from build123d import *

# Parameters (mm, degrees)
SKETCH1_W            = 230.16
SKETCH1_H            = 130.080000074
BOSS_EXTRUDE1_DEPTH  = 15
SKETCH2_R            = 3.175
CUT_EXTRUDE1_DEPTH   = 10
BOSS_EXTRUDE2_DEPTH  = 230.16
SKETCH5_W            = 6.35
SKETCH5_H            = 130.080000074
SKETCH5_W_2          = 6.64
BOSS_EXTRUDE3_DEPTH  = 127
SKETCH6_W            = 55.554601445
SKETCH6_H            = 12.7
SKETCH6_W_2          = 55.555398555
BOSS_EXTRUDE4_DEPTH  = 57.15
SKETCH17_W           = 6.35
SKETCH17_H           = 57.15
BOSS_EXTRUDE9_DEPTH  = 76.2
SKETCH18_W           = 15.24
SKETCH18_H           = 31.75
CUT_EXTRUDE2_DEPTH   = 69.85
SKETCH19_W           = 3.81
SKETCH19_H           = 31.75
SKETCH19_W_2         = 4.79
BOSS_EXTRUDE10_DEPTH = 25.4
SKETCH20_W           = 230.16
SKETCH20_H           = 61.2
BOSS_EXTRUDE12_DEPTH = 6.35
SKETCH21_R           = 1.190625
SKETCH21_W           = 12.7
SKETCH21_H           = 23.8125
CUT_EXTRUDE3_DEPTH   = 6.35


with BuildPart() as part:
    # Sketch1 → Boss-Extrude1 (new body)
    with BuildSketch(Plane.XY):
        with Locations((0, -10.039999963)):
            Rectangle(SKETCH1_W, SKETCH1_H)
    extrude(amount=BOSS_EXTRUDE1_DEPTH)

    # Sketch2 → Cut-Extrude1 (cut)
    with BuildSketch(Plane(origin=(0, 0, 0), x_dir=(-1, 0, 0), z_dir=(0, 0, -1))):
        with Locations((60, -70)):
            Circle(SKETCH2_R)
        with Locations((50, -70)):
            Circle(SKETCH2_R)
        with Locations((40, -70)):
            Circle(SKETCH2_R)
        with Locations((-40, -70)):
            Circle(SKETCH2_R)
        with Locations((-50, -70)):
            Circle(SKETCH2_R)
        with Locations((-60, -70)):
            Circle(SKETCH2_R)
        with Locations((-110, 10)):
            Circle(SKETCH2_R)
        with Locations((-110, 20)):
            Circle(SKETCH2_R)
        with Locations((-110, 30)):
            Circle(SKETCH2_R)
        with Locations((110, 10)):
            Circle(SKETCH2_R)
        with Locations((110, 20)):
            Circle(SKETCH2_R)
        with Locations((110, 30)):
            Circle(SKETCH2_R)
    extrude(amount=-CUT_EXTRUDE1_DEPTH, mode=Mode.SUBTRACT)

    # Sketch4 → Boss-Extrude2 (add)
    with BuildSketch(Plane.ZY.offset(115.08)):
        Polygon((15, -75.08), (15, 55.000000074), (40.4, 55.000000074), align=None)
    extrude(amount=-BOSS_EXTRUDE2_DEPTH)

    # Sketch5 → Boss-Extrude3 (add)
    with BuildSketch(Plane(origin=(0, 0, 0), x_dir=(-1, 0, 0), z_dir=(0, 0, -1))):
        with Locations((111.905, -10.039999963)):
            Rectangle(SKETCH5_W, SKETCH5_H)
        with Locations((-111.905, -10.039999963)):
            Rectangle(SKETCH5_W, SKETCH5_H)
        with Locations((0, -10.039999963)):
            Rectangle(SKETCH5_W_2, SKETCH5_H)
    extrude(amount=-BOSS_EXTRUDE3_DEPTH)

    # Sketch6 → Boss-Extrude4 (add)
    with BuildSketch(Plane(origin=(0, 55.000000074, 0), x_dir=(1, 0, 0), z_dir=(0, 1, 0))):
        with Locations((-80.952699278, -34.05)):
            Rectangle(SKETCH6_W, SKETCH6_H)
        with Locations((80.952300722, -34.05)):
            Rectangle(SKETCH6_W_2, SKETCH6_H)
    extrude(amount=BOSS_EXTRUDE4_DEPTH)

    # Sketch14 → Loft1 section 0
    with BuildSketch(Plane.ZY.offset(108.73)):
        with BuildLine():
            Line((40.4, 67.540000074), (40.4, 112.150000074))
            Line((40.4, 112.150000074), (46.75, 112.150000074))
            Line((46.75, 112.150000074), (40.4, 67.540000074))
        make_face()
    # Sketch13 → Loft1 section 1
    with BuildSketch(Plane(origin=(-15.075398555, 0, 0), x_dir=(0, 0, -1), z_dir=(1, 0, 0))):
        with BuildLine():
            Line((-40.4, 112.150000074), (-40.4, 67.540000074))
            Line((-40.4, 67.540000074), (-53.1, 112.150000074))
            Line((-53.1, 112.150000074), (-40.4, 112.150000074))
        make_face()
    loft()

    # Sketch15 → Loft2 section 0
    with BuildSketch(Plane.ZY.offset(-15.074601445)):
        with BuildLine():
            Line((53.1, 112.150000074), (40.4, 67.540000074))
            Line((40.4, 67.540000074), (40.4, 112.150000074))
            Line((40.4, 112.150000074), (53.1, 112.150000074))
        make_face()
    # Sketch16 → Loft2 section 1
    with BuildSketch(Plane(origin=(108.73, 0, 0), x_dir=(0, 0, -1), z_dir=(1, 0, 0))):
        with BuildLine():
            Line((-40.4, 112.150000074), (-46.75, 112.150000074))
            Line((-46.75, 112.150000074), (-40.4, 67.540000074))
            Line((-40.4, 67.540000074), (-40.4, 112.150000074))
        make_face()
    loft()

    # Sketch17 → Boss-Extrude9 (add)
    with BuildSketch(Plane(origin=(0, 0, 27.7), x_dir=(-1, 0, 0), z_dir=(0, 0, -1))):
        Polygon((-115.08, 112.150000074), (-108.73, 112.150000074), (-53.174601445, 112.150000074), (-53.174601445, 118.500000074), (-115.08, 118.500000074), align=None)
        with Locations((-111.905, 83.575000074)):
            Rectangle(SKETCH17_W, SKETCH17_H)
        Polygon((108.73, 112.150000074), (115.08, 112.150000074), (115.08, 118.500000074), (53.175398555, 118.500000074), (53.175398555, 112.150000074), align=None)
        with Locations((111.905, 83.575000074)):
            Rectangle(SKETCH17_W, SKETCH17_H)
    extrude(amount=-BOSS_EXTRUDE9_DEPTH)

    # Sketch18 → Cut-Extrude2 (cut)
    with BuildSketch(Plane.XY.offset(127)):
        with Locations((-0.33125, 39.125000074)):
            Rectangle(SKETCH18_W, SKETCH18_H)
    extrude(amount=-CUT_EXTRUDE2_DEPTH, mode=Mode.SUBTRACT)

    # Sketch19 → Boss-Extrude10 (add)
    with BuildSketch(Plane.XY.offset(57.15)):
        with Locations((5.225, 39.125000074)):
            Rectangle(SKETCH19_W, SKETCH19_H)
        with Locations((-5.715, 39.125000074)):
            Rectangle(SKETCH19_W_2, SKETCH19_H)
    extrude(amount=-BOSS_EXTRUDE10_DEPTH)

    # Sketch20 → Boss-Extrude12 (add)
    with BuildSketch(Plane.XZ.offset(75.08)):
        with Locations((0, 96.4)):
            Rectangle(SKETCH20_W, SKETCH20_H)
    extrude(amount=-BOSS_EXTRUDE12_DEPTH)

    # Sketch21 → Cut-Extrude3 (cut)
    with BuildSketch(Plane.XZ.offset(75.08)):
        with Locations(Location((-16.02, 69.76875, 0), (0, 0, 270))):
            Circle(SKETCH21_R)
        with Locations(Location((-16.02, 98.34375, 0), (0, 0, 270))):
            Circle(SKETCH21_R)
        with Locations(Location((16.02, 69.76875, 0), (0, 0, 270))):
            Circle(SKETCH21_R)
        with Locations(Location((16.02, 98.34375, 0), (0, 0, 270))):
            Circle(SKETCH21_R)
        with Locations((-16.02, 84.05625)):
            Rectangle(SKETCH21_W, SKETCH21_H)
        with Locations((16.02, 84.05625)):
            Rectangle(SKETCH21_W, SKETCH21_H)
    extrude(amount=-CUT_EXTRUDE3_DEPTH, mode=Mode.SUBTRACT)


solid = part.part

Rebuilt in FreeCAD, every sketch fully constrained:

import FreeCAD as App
import Part
import Sketcher
Q = App.Units.Quantity

doc = App.newDocument("Part")
body = doc.addObject("PartDesign::Body", "Body")

# Sketch on XY plane
sketch1 = body.newObject("Sketcher::SketchObject", "Sketch")
sketch1.AttachmentSupport = (doc.getObject("XY_Plane"), [""])
sketch1.MapMode = "FlatFace"
sketch1.addGeometry([
    Part.LineSegment(App.Vector(-115, 55, 0), App.Vector(-115, -75, 0)),
    Part.LineSegment(App.Vector(-115, -75, 0), App.Vector(115, -75, 0)),
    Part.LineSegment(App.Vector(115, -75, 0), App.Vector(115, 55, 0)),
    Part.LineSegment(App.Vector(115, 55, 0), App.Vector(-115, 55, 0)),
], False)
sketch1.addConstraint([
    Sketcher.Constraint("Coincident", 0, 2, 1, 1),
    Sketcher.Constraint("Coincident", 1, 2, 2, 1),
    Sketcher.Constraint("Coincident", 2, 2, 3, 1),
    Sketcher.Constraint("Coincident", 3, 2, 0, 1),
    Sketcher.Constraint("Vertical", 0),
    Sketcher.Constraint("Horizontal", 1),
    Sketcher.Constraint("Vertical", 2),
    Sketcher.Constraint("Horizontal", 3),
    Sketcher.Constraint("DistanceX", 1, 1, 1, 2, Q("230.16 mm")),
    Sketcher.Constraint("DistanceY", 0, 2, 0, 1, Q("130.08 mm")),
    Sketcher.Constraint("DistanceX", 0, 2, -1, 1, Q("115.08 mm")),
    Sketcher.Constraint("DistanceY", 0, 2, -1, 1, Q("75.08 mm")),
])
pad1 = body.newObject("PartDesign::Pad", "Pad")
pad1.Profile = sketch1
pad1.Length = 15

# Sketch on XY plane
sketch2 = body.newObject("Sketcher::SketchObject", "Sketch001")
sketch2.AttachmentSupport = (doc.getObject("XY_Plane"), [""])
sketch2.MapMode = "FlatFace"
sketch2.addGeometry([
    Part.Circle(App.Vector(-60, -70, 0), App.Vector(0, 0, 1), 3.2),  # 0
    Part.Circle(App.Vector(-50, -70, 0), App.Vector(0, 0, 1), 3.2),  # 1
    Part.Circle(App.Vector(-40, -70, 0), App.Vector(0, 0, 1), 3.2),  # 2
    Part.Circle(App.Vector(40, -70, 0), App.Vector(0, 0, 1), 3.2),  # 3
    Part.Circle(App.Vector(50, -70, 0), App.Vector(0, 0, 1), 3.2),  # 4
    Part.Circle(App.Vector(60, -70, 0), App.Vector(0, 0, 1), 3.2),  # 5
    Part.Circle(App.Vector(110, 10, 0), App.Vector(0, 0, 1), 3.2),  # 6
    Part.Circle(App.Vector(110, 20, 0), App.Vector(0, 0, 1), 3.2),  # 7
    Part.Circle(App.Vector(110, 30, 0), App.Vector(0, 0, 1), 3.2),  # 8
    Part.Circle(App.Vector(-110, 10, 0), App.Vector(0, 0, 1), 3.2),  # 9
    Part.Circle(App.Vector(-110, 20, 0), App.Vector(0, 0, 1), 3.2),  # 10
    Part.Circle(App.Vector(-110, 30, 0), App.Vector(0, 0, 1), 3.2),  # 11
], False)
sketch2.addConstraint([
    Sketcher.Constraint("Equal", 0, 1),
    Sketcher.Constraint("Equal", 1, 2),
    Sketcher.Constraint("Equal", 2, 3),
    Sketcher.Constraint("Equal", 3, 4),
    Sketcher.Constraint("Equal", 4, 5),
    Sketcher.Constraint("Equal", 5, 6),
    Sketcher.Constraint("Equal", 6, 7),
    Sketcher.Constraint("Equal", 7, 8),
    Sketcher.Constraint("Equal", 8, 9),
    Sketcher.Constraint("Equal", 9, 10),
    Sketcher.Constraint("Equal", 10, 11),
    Sketcher.Constraint("Symmetric", 2, 3, 3, 3, -2),
    Sketcher.Constraint("Symmetric", 1, 3, 4, 3, -2),
    Sketcher.Constraint("Symmetric", 0, 3, 5, 3, -2),
    Sketcher.Constraint("Symmetric", 6, 3, 9, 3, -2),
    Sketcher.Constraint("Symmetric", 7, 3, 10, 3, -2),
    Sketcher.Constraint("Symmetric", 8, 3, 11, 3, -2),
    Sketcher.Constraint("Horizontal", 0, 3, 1, 3),
    Sketcher.Constraint("Horizontal", 1, 3, 2, 3),
    Sketcher.Constraint("Vertical", 6, 3, 7, 3),
    Sketcher.Constraint("Vertical", 7, 3, 8, 3),
    Sketcher.Constraint("Diameter", 0, Q("0.25 in")),
    Sketcher.Constraint("DistanceX", 0, 3, -1, 1, Q("60 mm")),
    Sketcher.Constraint("DistanceY", 0, 3, -1, 1, Q("70 mm")),
    Sketcher.Constraint("DistanceX", 1, 3, -1, 1, Q("50 mm")),
    Sketcher.Constraint("DistanceX", 2, 3, -1, 1, Q("40 mm")),
    Sketcher.Constraint("DistanceX", -1, 1, 6, 3, Q("110 mm")),
    Sketcher.Constraint("DistanceY", -1, 1, 6, 3, Q("10 mm")),
    Sketcher.Constraint("DistanceY", -1, 1, 7, 3, Q("20 mm")),
    Sketcher.Constraint("DistanceY", -1, 1, 8, 3, Q("30 mm")),
])
pocket1 = body.newObject("PartDesign::Pocket", "Pocket")
pocket1.Profile = sketch2
pocket1.Length = 10
pocket1.Reversed = True

# Sketch on YZ plane
sketch3 = body.newObject("Sketcher::SketchObject", "Sketch002")
sketch3.AttachmentSupport = (doc.getObject("YZ_Plane"), [""])
sketch3.MapMode = "FlatFace"
sketch3.AttachmentOffset = App.Placement(App.Vector(0, 0, -115.08), App.Rotation())
sketch3.addGeometry([
    Part.LineSegment(App.Vector(55, 15, 0), App.Vector(-75, 15, 0)),
    Part.LineSegment(App.Vector(-75, 15, 0), App.Vector(55, 40, 0)),
    Part.LineSegment(App.Vector(55, 40, 0), App.Vector(55, 15, 0)),
], False)
sketch3.addConstraint([
    Sketcher.Constraint("Coincident", 0, 2, 1, 1),
    Sketcher.Constraint("Coincident", 1, 2, 2, 1),
    Sketcher.Constraint("Coincident", 2, 2, 0, 1),
    Sketcher.Constraint("Horizontal", 0),
    Sketcher.Constraint("Vertical", 2),
    Sketcher.Constraint("DistanceY", 2, 2, 2, 1, Q("1 in")),
    Sketcher.Constraint("DistanceX", 0, 2, 0, 1, Q("130.08 mm")),
    Sketcher.Constraint("DistanceX", 0, 2, -1, 1, Q("75.08 mm")),
    Sketcher.Constraint("DistanceY", -1, 1, 0, 2, Q("15 mm")),
])
pad2 = body.newObject("PartDesign::Pad", "Pad001")
pad2.Profile = sketch3
pad2.Length = 230.16

# Sketch on XY plane
sketch4 = body.newObject("Sketcher::SketchObject", "Sketch003")
sketch4.AttachmentSupport = (doc.getObject("XY_Plane"), [""])
sketch4.MapMode = "FlatFace"
sketch4.addGeometry([
    Part.LineSegment(App.Vector(-109, 55, 0), App.Vector(-109, -75, 0)),  # 0
    Part.LineSegment(App.Vector(-109, -75, 0), App.Vector(-115, -75, 0)),  # 1
    Part.LineSegment(App.Vector(-115, -75, 0), App.Vector(-115, 55, 0)),  # 2
    Part.LineSegment(App.Vector(-115, 55, 0), App.Vector(-109, 55, 0)),  # 3
    Part.LineSegment(App.Vector(115, 55, 0), App.Vector(115, -75, 0)),  # 4
    Part.LineSegment(App.Vector(115, -75, 0), App.Vector(109, -75, 0)),  # 5
    Part.LineSegment(App.Vector(109, -75, 0), App.Vector(109, 55, 0)),  # 6
    Part.LineSegment(App.Vector(109, 55, 0), App.Vector(115, 55, 0)),  # 7
    Part.LineSegment(App.Vector(3, 55, 0), App.Vector(3, -75, 0)),  # 8
    Part.LineSegment(App.Vector(3, -75, 0), App.Vector(-3, -75, 0)),  # 9
    Part.LineSegment(App.Vector(-3, -75, 0), App.Vector(-3, 55, 0)),  # 10
    Part.LineSegment(App.Vector(-3, 55, 0), App.Vector(3, 55, 0)),  # 11
], False)
sketch4.addConstraint([
    Sketcher.Constraint("Coincident", 0, 2, 1, 1),
    Sketcher.Constraint("Coincident", 1, 2, 2, 1),
    Sketcher.Constraint("Coincident", 2, 2, 3, 1),
    Sketcher.Constraint("Coincident", 3, 2, 0, 1),
    Sketcher.Constraint("Coincident", 4, 2, 5, 1),
    Sketcher.Constraint("Coincident", 5, 2, 6, 1),
    Sketcher.Constraint("Coincident", 6, 2, 7, 1),
    Sketcher.Constraint("Coincident", 7, 2, 4, 1),
    Sketcher.Constraint("Coincident", 8, 2, 9, 1),
    Sketcher.Constraint("Coincident", 9, 2, 10, 1),
    Sketcher.Constraint("Coincident", 10, 2, 11, 1),
    Sketcher.Constraint("Coincident", 11, 2, 8, 1),
    Sketcher.Constraint("Vertical", 0),
    Sketcher.Constraint("Horizontal", 1),
    Sketcher.Constraint("Vertical", 2),
    Sketcher.Constraint("Horizontal", 3),
    Sketcher.Constraint("Vertical", 4),
    Sketcher.Constraint("Horizontal", 5),
    Sketcher.Constraint("Vertical", 6),
    Sketcher.Constraint("Horizontal", 7),
    Sketcher.Constraint("Vertical", 8),
    Sketcher.Constraint("Horizontal", 9),
    Sketcher.Constraint("Vertical", 10),
    Sketcher.Constraint("Horizontal", 11),
    Sketcher.Constraint("Symmetric", 1, 2, 4, 2, -2),
    Sketcher.Constraint("Symmetric", 3, 2, 6, 2, -2),
    Sketcher.Constraint("Horizontal", 5, 2, 8, 2),
    Sketcher.Constraint("Horizontal", 7, 2, 10, 2),
    Sketcher.Constraint("DistanceX", 1, 2, 1, 1, Q("0.25 in")),
    Sketcher.Constraint("DistanceX", 8, 2, 4, 2, Q("4.4 in")),
    Sketcher.Constraint("DistanceX", 1, 2, 9, 2, Q("4.4 in")),
    Sketcher.Constraint("DistanceX", 9, 2, 9, 1, Q("6.64 mm")),
    Sketcher.Constraint("DistanceY", 0, 2, 0, 1, Q("130.08 mm")),
    Sketcher.Constraint("DistanceY", 0, 2, -1, 1, Q("75.08 mm")),
])
pad3 = body.newObject("PartDesign::Pad", "Pad002")
pad3.Profile = sketch4
pad3.Length = Q("5 in")

# Sketch on XZ plane
sketch5 = body.newObject("Sketcher::SketchObject", "Sketch004")
sketch5.AttachmentSupport = (doc.getObject("XZ_Plane"), [""])
sketch5.MapMode = "FlatFace"
sketch5.AttachmentOffset = App.Placement(App.Vector(0, 0, -55), App.Rotation())
sketch5.addGeometry([
    Part.LineSegment(App.Vector(-109, 28, 0), App.Vector(-109, 40, 0)),  # 0
    Part.LineSegment(App.Vector(-109, 40, 0), App.Vector(-53, 40, 0)),  # 1
    Part.LineSegment(App.Vector(-53, 40, 0), App.Vector(-53, 28, 0)),  # 2
    Part.LineSegment(App.Vector(-53, 28, 0), App.Vector(-109, 28, 0)),  # 3
    Part.LineSegment(App.Vector(53, 28, 0), App.Vector(53, 40, 0)),  # 4
    Part.LineSegment(App.Vector(53, 40, 0), App.Vector(109, 40, 0)),  # 5
    Part.LineSegment(App.Vector(109, 40, 0), App.Vector(109, 28, 0)),  # 6
    Part.LineSegment(App.Vector(109, 28, 0), App.Vector(53, 28, 0)),  # 7
], False)
sketch5.addConstraint([
    Sketcher.Constraint("Coincident", 0, 2, 1, 1),
    Sketcher.Constraint("Coincident", 1, 2, 2, 1),
    Sketcher.Constraint("Coincident", 2, 2, 3, 1),
    Sketcher.Constraint("Coincident", 3, 2, 0, 1),
    Sketcher.Constraint("Coincident", 4, 2, 5, 1),
    Sketcher.Constraint("Coincident", 5, 2, 6, 1),
    Sketcher.Constraint("Coincident", 6, 2, 7, 1),
    Sketcher.Constraint("Coincident", 7, 2, 4, 1),
    Sketcher.Constraint("Vertical", 0),
    Sketcher.Constraint("Horizontal", 1),
    Sketcher.Constraint("Vertical", 2),
    Sketcher.Constraint("Horizontal", 3),
    Sketcher.Constraint("Vertical", 4),
    Sketcher.Constraint("Horizontal", 5),
    Sketcher.Constraint("Vertical", 6),
    Sketcher.Constraint("Horizontal", 7),
    Sketcher.Constraint("Symmetric", 0, 2, 5, 2, -2),
    Sketcher.Constraint("Horizontal", 3, 2, 6, 2),
    Sketcher.Constraint("DistanceY", 0, 1, 0, 2, Q("0.5 in")),
    Sketcher.Constraint("DistanceX", 1, 1, 1, 2, Q("55.554601 mm")),
    Sketcher.Constraint("DistanceX", 5, 1, 5, 2, Q("55.555399 mm")),
    Sketcher.Constraint("DistanceX", 0, 2, -1, 1, Q("108.73 mm")),
    Sketcher.Constraint("DistanceY", -1, 1, 0, 2, Q("40.4 mm")),
])
pad4 = body.newObject("PartDesign::Pad", "Pad003")
pad4.Profile = sketch5
pad4.Length = Q("2.25 in")
pad4.Reversed = True

# Sketch on YZ plane
sketch6 = body.newObject("Sketcher::SketchObject", "Sketch005")
sketch6.AttachmentSupport = (doc.getObject("YZ_Plane"), [""])
sketch6.MapMode = "FlatFace"
sketch6.AttachmentOffset = App.Placement(App.Vector(0, 0, -108.73), App.Rotation())
sketch6.addGeometry([
    Part.LineSegment(App.Vector(112, 40, 0), App.Vector(68, 40, 0)),
    Part.LineSegment(App.Vector(68, 40, 0), App.Vector(112, 47, 0)),
    Part.LineSegment(App.Vector(112, 47, 0), App.Vector(112, 40, 0)),
], False)
sketch6.addConstraint([
    Sketcher.Constraint("Coincident", 0, 2, 1, 1),
    Sketcher.Constraint("Coincident", 1, 2, 2, 1),
    Sketcher.Constraint("Coincident", 2, 2, 0, 1),
    Sketcher.Constraint("Horizontal", 0),
    Sketcher.Constraint("Vertical", 2),
    Sketcher.Constraint("DistanceY", 2, 2, 2, 1, Q("0.25 in")),
    Sketcher.Constraint("DistanceX", 0, 2, 0, 1, Q("44.61 mm")),
    Sketcher.Constraint("DistanceX", -1, 1, 0, 2, Q("67.54 mm")),
    Sketcher.Constraint("DistanceY", -1, 1, 0, 2, Q("40.4 mm")),
])

# Sketch on YZ plane
sketch7 = body.newObject("Sketcher::SketchObject", "Sketch006")
sketch7.AttachmentSupport = (doc.getObject("YZ_Plane"), [""])
sketch7.MapMode = "FlatFace"
sketch7.AttachmentOffset = App.Placement(App.Vector(0, 0, -15.075399), App.Rotation())
sketch7.addGeometry([
    Part.LineSegment(App.Vector(68, 40, 0), App.Vector(112, 40, 0)),
    Part.LineSegment(App.Vector(112, 40, 0), App.Vector(112, 53, 0)),
    Part.LineSegment(App.Vector(112, 53, 0), App.Vector(68, 40, 0)),
], False)
sketch7.addConstraint([
    Sketcher.Constraint("Coincident", 0, 2, 1, 1),
    Sketcher.Constraint("Coincident", 1, 2, 2, 1),
    Sketcher.Constraint("Coincident", 2, 2, 0, 1),
    Sketcher.Constraint("Horizontal", 0),
    Sketcher.Constraint("Vertical", 1),
    Sketcher.Constraint("DistanceY", 1, 1, 1, 2, Q("0.5 in")),
    Sketcher.Constraint("DistanceX", 0, 1, 0, 2, Q("44.61 mm")),
    Sketcher.Constraint("DistanceX", -1, 1, 0, 2, Q("112.15 mm")),
    Sketcher.Constraint("DistanceY", -1, 1, 0, 2, Q("40.4 mm")),
])

additiveloft = body.newObject("PartDesign::AdditiveLoft", "AdditiveLoft")
additiveloft.Profile = sketch6
additiveloft.Sections = [sketch7]

# Sketch on YZ plane
sketch8 = body.newObject("Sketcher::SketchObject", "Sketch007")
sketch8.AttachmentSupport = (doc.getObject("YZ_Plane"), [""])
sketch8.MapMode = "FlatFace"
sketch8.AttachmentOffset = App.Placement(App.Vector(0, 0, 15.074601), App.Rotation())
sketch8.addGeometry([
    Part.LineSegment(App.Vector(68, 40, 0), App.Vector(112, 53, 0)),
    Part.LineSegment(App.Vector(112, 53, 0), App.Vector(112, 40, 0)),
    Part.LineSegment(App.Vector(112, 40, 0), App.Vector(68, 40, 0)),
], False)
sketch8.addConstraint([
    Sketcher.Constraint("Coincident", 0, 2, 1, 1),
    Sketcher.Constraint("Coincident", 1, 2, 2, 1),
    Sketcher.Constraint("Coincident", 2, 2, 0, 1),
    Sketcher.Constraint("Vertical", 1),
    Sketcher.Constraint("Horizontal", 2),
    Sketcher.Constraint("DistanceY", 1, 2, 1, 1, Q("0.5 in")),
    Sketcher.Constraint("DistanceX", 2, 2, 2, 1, Q("44.61 mm")),
    Sketcher.Constraint("DistanceX", -1, 1, 0, 2, Q("112.15 mm")),
    Sketcher.Constraint("DistanceY", -1, 1, 0, 2, Q("53.1 mm")),
])

# Sketch on YZ plane
sketch9 = body.newObject("Sketcher::SketchObject", "Sketch008")
sketch9.AttachmentSupport = (doc.getObject("YZ_Plane"), [""])
sketch9.MapMode = "FlatFace"
sketch9.AttachmentOffset = App.Placement(App.Vector(0, 0, 108.73), App.Rotation())
sketch9.addGeometry([
    Part.LineSegment(App.Vector(112, 40, 0), App.Vector(112, 47, 0)),
    Part.LineSegment(App.Vector(112, 47, 0), App.Vector(68, 40, 0)),
    Part.LineSegment(App.Vector(68, 40, 0), App.Vector(112, 40, 0)),
], False)
sketch9.addConstraint([
    Sketcher.Constraint("Coincident", 0, 2, 1, 1),
    Sketcher.Constraint("Coincident", 1, 2, 2, 1),
    Sketcher.Constraint("Coincident", 2, 2, 0, 1),
    Sketcher.Constraint("Vertical", 0),
    Sketcher.Constraint("Horizontal", 2),
    Sketcher.Constraint("DistanceY", 0, 1, 0, 2, Q("0.25 in")),
    Sketcher.Constraint("DistanceX", 2, 1, 2, 2, Q("44.61 mm")),
    Sketcher.Constraint("DistanceX", -1, 1, 0, 2, Q("112.15 mm")),
    Sketcher.Constraint("DistanceY", -1, 1, 0, 2, Q("46.75 mm")),
])

additiveloft2 = body.newObject("PartDesign::AdditiveLoft", "AdditiveLoft001")
additiveloft2.Profile = sketch8
additiveloft2.Sections = [sketch9]

# Sketch on XY plane
sketch10 = body.newObject("Sketcher::SketchObject", "Sketch009")
sketch10.AttachmentSupport = (doc.getObject("XY_Plane"), [""])
sketch10.MapMode = "FlatFace"
sketch10.AttachmentOffset = App.Placement(App.Vector(0, 0, 27.7), App.Rotation())
sketch10.addGeometry([
    Part.LineSegment(App.Vector(109, 112, 0), App.Vector(53, 112, 0)),  # 0
    Part.LineSegment(App.Vector(53, 112, 0), App.Vector(53, 119, 0)),  # 1
    Part.LineSegment(App.Vector(53, 119, 0), App.Vector(115, 119, 0)),  # 2
    Part.LineSegment(App.Vector(115, 119, 0), App.Vector(115, 55, 0)),  # 3
    Part.LineSegment(App.Vector(115, 55, 0), App.Vector(109, 55, 0)),  # 4
    Part.LineSegment(App.Vector(109, 55, 0), App.Vector(109, 112, 0)),  # 5
    Part.LineSegment(App.Vector(-115, 119, 0), App.Vector(-53, 119, 0)),  # 6
    Part.LineSegment(App.Vector(-53, 119, 0), App.Vector(-53, 112, 0)),  # 7
    Part.LineSegment(App.Vector(-53, 112, 0), App.Vector(-109, 112, 0)),  # 8
    Part.LineSegment(App.Vector(-109, 112, 0), App.Vector(-109, 55, 0)),  # 9
    Part.LineSegment(App.Vector(-109, 55, 0), App.Vector(-115, 55, 0)),  # 10
    Part.LineSegment(App.Vector(-115, 55, 0), App.Vector(-115, 119, 0)),  # 11
], False)
sketch10.addConstraint([
    Sketcher.Constraint("Coincident", 0, 2, 1, 1),
    Sketcher.Constraint("Coincident", 1, 2, 2, 1),
    Sketcher.Constraint("Coincident", 2, 2, 3, 1),
    Sketcher.Constraint("Coincident", 3, 2, 4, 1),
    Sketcher.Constraint("Coincident", 4, 2, 5, 1),
    Sketcher.Constraint("Coincident", 5, 2, 0, 1),
    Sketcher.Constraint("Coincident", 6, 2, 7, 1),
    Sketcher.Constraint("Coincident", 7, 2, 8, 1),
    Sketcher.Constraint("Coincident", 8, 2, 9, 1),
    Sketcher.Constraint("Coincident", 9, 2, 10, 1),
    Sketcher.Constraint("Coincident", 10, 2, 11, 1),
    Sketcher.Constraint("Coincident", 11, 2, 6, 1),
    Sketcher.Constraint("Horizontal", 0),
    Sketcher.Constraint("Vertical", 1),
    Sketcher.Constraint("Horizontal", 2),
    Sketcher.Constraint("Vertical", 3),
    Sketcher.Constraint("Horizontal", 4),
    Sketcher.Constraint("Vertical", 5),
    Sketcher.Constraint("Horizontal", 6),
    Sketcher.Constraint("Vertical", 7),
    Sketcher.Constraint("Horizontal", 8),
    Sketcher.Constraint("Vertical", 9),
    Sketcher.Constraint("Horizontal", 10),
    Sketcher.Constraint("Vertical", 11),
    Sketcher.Constraint("Symmetric", 5, 2, 8, 2, -2),
    Sketcher.Constraint("Symmetric", 3, 2, 10, 2, -2),
    Sketcher.Constraint("Horizontal", 2, 2, 6, 2),
    Sketcher.Constraint("Equal", 10, 1),
    Sketcher.Constraint("DistanceY", 3, 2, 3, 1, Q("2.5 in")),
    Sketcher.Constraint("DistanceX", 4, 2, 4, 1, Q("0.25 in")),
    Sketcher.Constraint("DistanceX", 0, 2, 0, 1, Q("55.555399 mm")),
    Sketcher.Constraint("DistanceX", 6, 1, 6, 2, Q("61.904601 mm")),
    Sketcher.Constraint("DistanceX", -1, 1, 0, 2, Q("53.174601 mm")),
    Sketcher.Constraint("DistanceY", -1, 1, 0, 2, Q("112.15 mm")),
])
pad5 = body.newObject("PartDesign::Pad", "Pad004")
pad5.Profile = sketch10
pad5.Length = Q("3 in")

# Sketch on XY plane
sketch11 = body.newObject("Sketcher::SketchObject", "Sketch010")
sketch11.AttachmentSupport = (doc.getObject("XY_Plane"), [""])
sketch11.MapMode = "FlatFace"
sketch11.AttachmentOffset = App.Placement(App.Vector(0, 0, 5 * 25.4), App.Rotation())
sketch11.addGeometry([
    Part.LineSegment(App.Vector(-8, 55, 0), App.Vector(-8, 23, 0)),
    Part.LineSegment(App.Vector(-8, 23, 0), App.Vector(7, 23, 0)),
    Part.LineSegment(App.Vector(7, 23, 0), App.Vector(7, 55, 0)),
    Part.LineSegment(App.Vector(7, 55, 0), App.Vector(-8, 55, 0)),
], False)
sketch11.addConstraint([
    Sketcher.Constraint("Coincident", 0, 2, 1, 1),
    Sketcher.Constraint("Coincident", 1, 2, 2, 1),
    Sketcher.Constraint("Coincident", 2, 2, 3, 1),
    Sketcher.Constraint("Coincident", 3, 2, 0, 1),
    Sketcher.Constraint("Vertical", 0),
    Sketcher.Constraint("Horizontal", 1),
    Sketcher.Constraint("Vertical", 2),
    Sketcher.Constraint("Horizontal", 3),
    Sketcher.Constraint("DistanceX", 1, 1, 1, 2, Q("0.6 in")),
    Sketcher.Constraint("DistanceY", 0, 2, 0, 1, Q("1.25 in")),
    Sketcher.Constraint("DistanceY", -1, 1, 0, 2, Q("23.25 mm")),
    Sketcher.Constraint("DistanceX", 0, 2, -1, 1, Q("7.95125 mm")),
])
pocket2 = body.newObject("PartDesign::Pocket", "Pocket001")
pocket2.Profile = sketch11
pocket2.Length = Q("2.75 in")

# Sketch on XY plane
sketch12 = body.newObject("Sketcher::SketchObject", "Sketch011")
sketch12.AttachmentSupport = (doc.getObject("XY_Plane"), [""])
sketch12.MapMode = "FlatFace"
sketch12.AttachmentOffset = App.Placement(App.Vector(0, 0, 2.25 * 25.4), App.Rotation())
sketch12.addGeometry([
    Part.LineSegment(App.Vector(3.3, 55, 0), App.Vector(3.3, 23.3, 0)),  # 0
    Part.LineSegment(App.Vector(3.3, 23.3, 0), App.Vector(7.1, 23.3, 0)),  # 1
    Part.LineSegment(App.Vector(7.1, 23.3, 0), App.Vector(7.1, 55, 0)),  # 2
    Part.LineSegment(App.Vector(7.1, 55, 0), App.Vector(3.3, 55, 0)),  # 3
    Part.LineSegment(App.Vector(-8.1, 55, 0), App.Vector(-8.1, 23.3, 0)),  # 4
    Part.LineSegment(App.Vector(-8.1, 23.3, 0), App.Vector(-3.3, 23.3, 0)),  # 5
    Part.LineSegment(App.Vector(-3.3, 23.3, 0), App.Vector(-3.3, 55, 0)),  # 6
    Part.LineSegment(App.Vector(-3.3, 55, 0), App.Vector(-8.1, 55, 0)),  # 7
], False)
sketch12.addConstraint([
    Sketcher.Constraint("Coincident", 0, 2, 1, 1),
    Sketcher.Constraint("Coincident", 1, 2, 2, 1),
    Sketcher.Constraint("Coincident", 2, 2, 3, 1),
    Sketcher.Constraint("Coincident", 3, 2, 0, 1),
    Sketcher.Constraint("Coincident", 4, 2, 5, 1),
    Sketcher.Constraint("Coincident", 5, 2, 6, 1),
    Sketcher.Constraint("Coincident", 6, 2, 7, 1),
    Sketcher.Constraint("Coincident", 7, 2, 4, 1),
    Sketcher.Constraint("Vertical", 0),
    Sketcher.Constraint("Horizontal", 1),
    Sketcher.Constraint("Vertical", 2),
    Sketcher.Constraint("Horizontal", 3),
    Sketcher.Constraint("Vertical", 4),
    Sketcher.Constraint("Horizontal", 5),
    Sketcher.Constraint("Vertical", 6),
    Sketcher.Constraint("Horizontal", 7),
    Sketcher.Constraint("Symmetric", 0, 2, 5, 2, -2),
    Sketcher.Constraint("Horizontal", 3, 2, 6, 2),
    Sketcher.Constraint("DistanceX", 1, 1, 1, 2, Q("0.15 in")),
    Sketcher.Constraint("DistanceY", 0, 2, 0, 1, Q("1.25 in")),
    Sketcher.Constraint("DistanceX", 4, 2, 1, 2, Q("0.6 in")),
    Sketcher.Constraint("DistanceX", 5, 1, 5, 2, Q("4.79 mm")),
    Sketcher.Constraint("DistanceY", -1, 1, 0, 2, Q("23.25 mm")),
])
pad6 = body.newObject("PartDesign::Pad", "Pad005")
pad6.Profile = sketch12
pad6.Length = Q("1 in")
pad6.Reversed = True

# Sketch on XZ plane
sketch13 = body.newObject("Sketcher::SketchObject", "Sketch012")
sketch13.AttachmentSupport = (doc.getObject("XZ_Plane"), [""])
sketch13.MapMode = "FlatFace"
sketch13.AttachmentOffset = App.Placement(App.Vector(0, 0, 75.08), App.Rotation())
sketch13.addGeometry([
    Part.LineSegment(App.Vector(-115, 127, 0), App.Vector(-115, 66, 0)),
    Part.LineSegment(App.Vector(-115, 66, 0), App.Vector(115, 66, 0)),
    Part.LineSegment(App.Vector(115, 66, 0), App.Vector(115, 127, 0)),
    Part.LineSegment(App.Vector(115, 127, 0), App.Vector(-115, 127, 0)),
], False)
sketch13.addConstraint([
    Sketcher.Constraint("Coincident", 0, 2, 1, 1),
    Sketcher.Constraint("Coincident", 1, 2, 2, 1),
    Sketcher.Constraint("Coincident", 2, 2, 3, 1),
    Sketcher.Constraint("Coincident", 3, 2, 0, 1),
    Sketcher.Constraint("Vertical", 0),
    Sketcher.Constraint("Horizontal", 1),
    Sketcher.Constraint("Vertical", 2),
    Sketcher.Constraint("Horizontal", 3),
    Sketcher.Constraint("DistanceY", -1, 1, 2, 2, Q("5 in")),
    Sketcher.Constraint("DistanceX", 1, 1, 1, 2, Q("230.16 mm")),
    Sketcher.Constraint("DistanceY", 0, 2, 0, 1, Q("61.2 mm")),
    Sketcher.Constraint("DistanceX", 0, 2, -1, 1, Q("115.08 mm")),
])
pad7 = body.newObject("PartDesign::Pad", "Pad006")
pad7.Profile = sketch13
pad7.Length = Q("0.25 in")
pad7.Reversed = True

# Sketch on XZ plane
sketch14 = body.newObject("Sketcher::SketchObject", "Sketch013")
sketch14.AttachmentSupport = (doc.getObject("XZ_Plane"), [""])
sketch14.MapMode = "FlatFace"
sketch14.AttachmentOffset = App.Placement(App.Vector(0, 0, 75.08), App.Rotation())
sketch14.addGeometry([
    Part.Circle(App.Vector(-16, 69.8, 0), App.Vector(0, 0, 1), 1.2),  # 0
    Part.Circle(App.Vector(-16, 98.3, 0), App.Vector(0, 0, 1), 1.2),  # 1
    Part.Circle(App.Vector(16, 69.8, 0), App.Vector(0, 0, 1), 1.2),  # 2
    Part.Circle(App.Vector(16, 98.3, 0), App.Vector(0, 0, 1), 1.2),  # 3
    Part.LineSegment(App.Vector(-22.4, 96, 0), App.Vector(-22.4, 72.2, 0)),  # 4
    Part.LineSegment(App.Vector(-22.4, 72.2, 0), App.Vector(-9.7, 72.2, 0)),  # 5
    Part.LineSegment(App.Vector(-9.7, 72.2, 0), App.Vector(-9.7, 96, 0)),  # 6
    Part.LineSegment(App.Vector(-9.7, 96, 0), App.Vector(-22.4, 96, 0)),  # 7
    Part.LineSegment(App.Vector(9.7, 96, 0), App.Vector(9.7, 72.2, 0)),  # 8
    Part.LineSegment(App.Vector(9.7, 72.2, 0), App.Vector(22.4, 72.2, 0)),  # 9
    Part.LineSegment(App.Vector(22.4, 72.2, 0), App.Vector(22.4, 96, 0)),  # 10
    Part.LineSegment(App.Vector(22.4, 96, 0), App.Vector(9.7, 96, 0)),  # 11
], False)
sketch14.addConstraint([
    Sketcher.Constraint("Coincident", 4, 2, 5, 1),
    Sketcher.Constraint("Coincident", 5, 2, 6, 1),
    Sketcher.Constraint("Coincident", 6, 2, 7, 1),
    Sketcher.Constraint("Coincident", 7, 2, 4, 1),
    Sketcher.Constraint("Coincident", 8, 2, 9, 1),
    Sketcher.Constraint("Coincident", 9, 2, 10, 1),
    Sketcher.Constraint("Coincident", 10, 2, 11, 1),
    Sketcher.Constraint("Coincident", 11, 2, 8, 1),
    Sketcher.Constraint("Vertical", 4),
    Sketcher.Constraint("Horizontal", 5),
    Sketcher.Constraint("Vertical", 6),
    Sketcher.Constraint("Horizontal", 7),
    Sketcher.Constraint("Vertical", 8),
    Sketcher.Constraint("Horizontal", 9),
    Sketcher.Constraint("Vertical", 10),
    Sketcher.Constraint("Horizontal", 11),
    Sketcher.Constraint("Equal", 0, 1),
    Sketcher.Constraint("Equal", 1, 2),
    Sketcher.Constraint("Equal", 2, 3),
    Sketcher.Constraint("Symmetric", 0, 3, 2, 3, -2),
    Sketcher.Constraint("Symmetric", 1, 3, 3, 3, -2),
    Sketcher.Constraint("Symmetric", 5, 2, 8, 2, -2),
    Sketcher.Constraint("Symmetric", 7, 2, 10, 2, -2),
    Sketcher.Constraint("Vertical", 0, 3, 1, 3),
    Sketcher.Constraint("Diameter", 0, Q("0.09375 in")),
    Sketcher.Constraint("DistanceX", 5, 1, 5, 2, Q("0.5 in")),
    Sketcher.Constraint("DistanceY", 4, 2, 4, 1, Q("0.9375 in")),
    Sketcher.Constraint("DistanceX", 4, 2, 0, 3, Q("0.25 in")),
    Sketcher.Constraint("DistanceY", 0, 3, 1, 3, Q("1.125 in")),
    Sketcher.Constraint("DistanceY", 0, 3, 4, 2, Q("0.09375 in")),
    Sketcher.Constraint("DistanceX", 0, 3, -1, 1, Q("16.02 mm")),
    Sketcher.Constraint("DistanceY", -1, 1, 4, 2, Q("72.15 mm")),
])
pocket3 = body.newObject("PartDesign::Pocket", "Pocket002")
pocket3.Profile = sketch14
pocket3.Length = Q("0.25 in")

doc.recompute()
